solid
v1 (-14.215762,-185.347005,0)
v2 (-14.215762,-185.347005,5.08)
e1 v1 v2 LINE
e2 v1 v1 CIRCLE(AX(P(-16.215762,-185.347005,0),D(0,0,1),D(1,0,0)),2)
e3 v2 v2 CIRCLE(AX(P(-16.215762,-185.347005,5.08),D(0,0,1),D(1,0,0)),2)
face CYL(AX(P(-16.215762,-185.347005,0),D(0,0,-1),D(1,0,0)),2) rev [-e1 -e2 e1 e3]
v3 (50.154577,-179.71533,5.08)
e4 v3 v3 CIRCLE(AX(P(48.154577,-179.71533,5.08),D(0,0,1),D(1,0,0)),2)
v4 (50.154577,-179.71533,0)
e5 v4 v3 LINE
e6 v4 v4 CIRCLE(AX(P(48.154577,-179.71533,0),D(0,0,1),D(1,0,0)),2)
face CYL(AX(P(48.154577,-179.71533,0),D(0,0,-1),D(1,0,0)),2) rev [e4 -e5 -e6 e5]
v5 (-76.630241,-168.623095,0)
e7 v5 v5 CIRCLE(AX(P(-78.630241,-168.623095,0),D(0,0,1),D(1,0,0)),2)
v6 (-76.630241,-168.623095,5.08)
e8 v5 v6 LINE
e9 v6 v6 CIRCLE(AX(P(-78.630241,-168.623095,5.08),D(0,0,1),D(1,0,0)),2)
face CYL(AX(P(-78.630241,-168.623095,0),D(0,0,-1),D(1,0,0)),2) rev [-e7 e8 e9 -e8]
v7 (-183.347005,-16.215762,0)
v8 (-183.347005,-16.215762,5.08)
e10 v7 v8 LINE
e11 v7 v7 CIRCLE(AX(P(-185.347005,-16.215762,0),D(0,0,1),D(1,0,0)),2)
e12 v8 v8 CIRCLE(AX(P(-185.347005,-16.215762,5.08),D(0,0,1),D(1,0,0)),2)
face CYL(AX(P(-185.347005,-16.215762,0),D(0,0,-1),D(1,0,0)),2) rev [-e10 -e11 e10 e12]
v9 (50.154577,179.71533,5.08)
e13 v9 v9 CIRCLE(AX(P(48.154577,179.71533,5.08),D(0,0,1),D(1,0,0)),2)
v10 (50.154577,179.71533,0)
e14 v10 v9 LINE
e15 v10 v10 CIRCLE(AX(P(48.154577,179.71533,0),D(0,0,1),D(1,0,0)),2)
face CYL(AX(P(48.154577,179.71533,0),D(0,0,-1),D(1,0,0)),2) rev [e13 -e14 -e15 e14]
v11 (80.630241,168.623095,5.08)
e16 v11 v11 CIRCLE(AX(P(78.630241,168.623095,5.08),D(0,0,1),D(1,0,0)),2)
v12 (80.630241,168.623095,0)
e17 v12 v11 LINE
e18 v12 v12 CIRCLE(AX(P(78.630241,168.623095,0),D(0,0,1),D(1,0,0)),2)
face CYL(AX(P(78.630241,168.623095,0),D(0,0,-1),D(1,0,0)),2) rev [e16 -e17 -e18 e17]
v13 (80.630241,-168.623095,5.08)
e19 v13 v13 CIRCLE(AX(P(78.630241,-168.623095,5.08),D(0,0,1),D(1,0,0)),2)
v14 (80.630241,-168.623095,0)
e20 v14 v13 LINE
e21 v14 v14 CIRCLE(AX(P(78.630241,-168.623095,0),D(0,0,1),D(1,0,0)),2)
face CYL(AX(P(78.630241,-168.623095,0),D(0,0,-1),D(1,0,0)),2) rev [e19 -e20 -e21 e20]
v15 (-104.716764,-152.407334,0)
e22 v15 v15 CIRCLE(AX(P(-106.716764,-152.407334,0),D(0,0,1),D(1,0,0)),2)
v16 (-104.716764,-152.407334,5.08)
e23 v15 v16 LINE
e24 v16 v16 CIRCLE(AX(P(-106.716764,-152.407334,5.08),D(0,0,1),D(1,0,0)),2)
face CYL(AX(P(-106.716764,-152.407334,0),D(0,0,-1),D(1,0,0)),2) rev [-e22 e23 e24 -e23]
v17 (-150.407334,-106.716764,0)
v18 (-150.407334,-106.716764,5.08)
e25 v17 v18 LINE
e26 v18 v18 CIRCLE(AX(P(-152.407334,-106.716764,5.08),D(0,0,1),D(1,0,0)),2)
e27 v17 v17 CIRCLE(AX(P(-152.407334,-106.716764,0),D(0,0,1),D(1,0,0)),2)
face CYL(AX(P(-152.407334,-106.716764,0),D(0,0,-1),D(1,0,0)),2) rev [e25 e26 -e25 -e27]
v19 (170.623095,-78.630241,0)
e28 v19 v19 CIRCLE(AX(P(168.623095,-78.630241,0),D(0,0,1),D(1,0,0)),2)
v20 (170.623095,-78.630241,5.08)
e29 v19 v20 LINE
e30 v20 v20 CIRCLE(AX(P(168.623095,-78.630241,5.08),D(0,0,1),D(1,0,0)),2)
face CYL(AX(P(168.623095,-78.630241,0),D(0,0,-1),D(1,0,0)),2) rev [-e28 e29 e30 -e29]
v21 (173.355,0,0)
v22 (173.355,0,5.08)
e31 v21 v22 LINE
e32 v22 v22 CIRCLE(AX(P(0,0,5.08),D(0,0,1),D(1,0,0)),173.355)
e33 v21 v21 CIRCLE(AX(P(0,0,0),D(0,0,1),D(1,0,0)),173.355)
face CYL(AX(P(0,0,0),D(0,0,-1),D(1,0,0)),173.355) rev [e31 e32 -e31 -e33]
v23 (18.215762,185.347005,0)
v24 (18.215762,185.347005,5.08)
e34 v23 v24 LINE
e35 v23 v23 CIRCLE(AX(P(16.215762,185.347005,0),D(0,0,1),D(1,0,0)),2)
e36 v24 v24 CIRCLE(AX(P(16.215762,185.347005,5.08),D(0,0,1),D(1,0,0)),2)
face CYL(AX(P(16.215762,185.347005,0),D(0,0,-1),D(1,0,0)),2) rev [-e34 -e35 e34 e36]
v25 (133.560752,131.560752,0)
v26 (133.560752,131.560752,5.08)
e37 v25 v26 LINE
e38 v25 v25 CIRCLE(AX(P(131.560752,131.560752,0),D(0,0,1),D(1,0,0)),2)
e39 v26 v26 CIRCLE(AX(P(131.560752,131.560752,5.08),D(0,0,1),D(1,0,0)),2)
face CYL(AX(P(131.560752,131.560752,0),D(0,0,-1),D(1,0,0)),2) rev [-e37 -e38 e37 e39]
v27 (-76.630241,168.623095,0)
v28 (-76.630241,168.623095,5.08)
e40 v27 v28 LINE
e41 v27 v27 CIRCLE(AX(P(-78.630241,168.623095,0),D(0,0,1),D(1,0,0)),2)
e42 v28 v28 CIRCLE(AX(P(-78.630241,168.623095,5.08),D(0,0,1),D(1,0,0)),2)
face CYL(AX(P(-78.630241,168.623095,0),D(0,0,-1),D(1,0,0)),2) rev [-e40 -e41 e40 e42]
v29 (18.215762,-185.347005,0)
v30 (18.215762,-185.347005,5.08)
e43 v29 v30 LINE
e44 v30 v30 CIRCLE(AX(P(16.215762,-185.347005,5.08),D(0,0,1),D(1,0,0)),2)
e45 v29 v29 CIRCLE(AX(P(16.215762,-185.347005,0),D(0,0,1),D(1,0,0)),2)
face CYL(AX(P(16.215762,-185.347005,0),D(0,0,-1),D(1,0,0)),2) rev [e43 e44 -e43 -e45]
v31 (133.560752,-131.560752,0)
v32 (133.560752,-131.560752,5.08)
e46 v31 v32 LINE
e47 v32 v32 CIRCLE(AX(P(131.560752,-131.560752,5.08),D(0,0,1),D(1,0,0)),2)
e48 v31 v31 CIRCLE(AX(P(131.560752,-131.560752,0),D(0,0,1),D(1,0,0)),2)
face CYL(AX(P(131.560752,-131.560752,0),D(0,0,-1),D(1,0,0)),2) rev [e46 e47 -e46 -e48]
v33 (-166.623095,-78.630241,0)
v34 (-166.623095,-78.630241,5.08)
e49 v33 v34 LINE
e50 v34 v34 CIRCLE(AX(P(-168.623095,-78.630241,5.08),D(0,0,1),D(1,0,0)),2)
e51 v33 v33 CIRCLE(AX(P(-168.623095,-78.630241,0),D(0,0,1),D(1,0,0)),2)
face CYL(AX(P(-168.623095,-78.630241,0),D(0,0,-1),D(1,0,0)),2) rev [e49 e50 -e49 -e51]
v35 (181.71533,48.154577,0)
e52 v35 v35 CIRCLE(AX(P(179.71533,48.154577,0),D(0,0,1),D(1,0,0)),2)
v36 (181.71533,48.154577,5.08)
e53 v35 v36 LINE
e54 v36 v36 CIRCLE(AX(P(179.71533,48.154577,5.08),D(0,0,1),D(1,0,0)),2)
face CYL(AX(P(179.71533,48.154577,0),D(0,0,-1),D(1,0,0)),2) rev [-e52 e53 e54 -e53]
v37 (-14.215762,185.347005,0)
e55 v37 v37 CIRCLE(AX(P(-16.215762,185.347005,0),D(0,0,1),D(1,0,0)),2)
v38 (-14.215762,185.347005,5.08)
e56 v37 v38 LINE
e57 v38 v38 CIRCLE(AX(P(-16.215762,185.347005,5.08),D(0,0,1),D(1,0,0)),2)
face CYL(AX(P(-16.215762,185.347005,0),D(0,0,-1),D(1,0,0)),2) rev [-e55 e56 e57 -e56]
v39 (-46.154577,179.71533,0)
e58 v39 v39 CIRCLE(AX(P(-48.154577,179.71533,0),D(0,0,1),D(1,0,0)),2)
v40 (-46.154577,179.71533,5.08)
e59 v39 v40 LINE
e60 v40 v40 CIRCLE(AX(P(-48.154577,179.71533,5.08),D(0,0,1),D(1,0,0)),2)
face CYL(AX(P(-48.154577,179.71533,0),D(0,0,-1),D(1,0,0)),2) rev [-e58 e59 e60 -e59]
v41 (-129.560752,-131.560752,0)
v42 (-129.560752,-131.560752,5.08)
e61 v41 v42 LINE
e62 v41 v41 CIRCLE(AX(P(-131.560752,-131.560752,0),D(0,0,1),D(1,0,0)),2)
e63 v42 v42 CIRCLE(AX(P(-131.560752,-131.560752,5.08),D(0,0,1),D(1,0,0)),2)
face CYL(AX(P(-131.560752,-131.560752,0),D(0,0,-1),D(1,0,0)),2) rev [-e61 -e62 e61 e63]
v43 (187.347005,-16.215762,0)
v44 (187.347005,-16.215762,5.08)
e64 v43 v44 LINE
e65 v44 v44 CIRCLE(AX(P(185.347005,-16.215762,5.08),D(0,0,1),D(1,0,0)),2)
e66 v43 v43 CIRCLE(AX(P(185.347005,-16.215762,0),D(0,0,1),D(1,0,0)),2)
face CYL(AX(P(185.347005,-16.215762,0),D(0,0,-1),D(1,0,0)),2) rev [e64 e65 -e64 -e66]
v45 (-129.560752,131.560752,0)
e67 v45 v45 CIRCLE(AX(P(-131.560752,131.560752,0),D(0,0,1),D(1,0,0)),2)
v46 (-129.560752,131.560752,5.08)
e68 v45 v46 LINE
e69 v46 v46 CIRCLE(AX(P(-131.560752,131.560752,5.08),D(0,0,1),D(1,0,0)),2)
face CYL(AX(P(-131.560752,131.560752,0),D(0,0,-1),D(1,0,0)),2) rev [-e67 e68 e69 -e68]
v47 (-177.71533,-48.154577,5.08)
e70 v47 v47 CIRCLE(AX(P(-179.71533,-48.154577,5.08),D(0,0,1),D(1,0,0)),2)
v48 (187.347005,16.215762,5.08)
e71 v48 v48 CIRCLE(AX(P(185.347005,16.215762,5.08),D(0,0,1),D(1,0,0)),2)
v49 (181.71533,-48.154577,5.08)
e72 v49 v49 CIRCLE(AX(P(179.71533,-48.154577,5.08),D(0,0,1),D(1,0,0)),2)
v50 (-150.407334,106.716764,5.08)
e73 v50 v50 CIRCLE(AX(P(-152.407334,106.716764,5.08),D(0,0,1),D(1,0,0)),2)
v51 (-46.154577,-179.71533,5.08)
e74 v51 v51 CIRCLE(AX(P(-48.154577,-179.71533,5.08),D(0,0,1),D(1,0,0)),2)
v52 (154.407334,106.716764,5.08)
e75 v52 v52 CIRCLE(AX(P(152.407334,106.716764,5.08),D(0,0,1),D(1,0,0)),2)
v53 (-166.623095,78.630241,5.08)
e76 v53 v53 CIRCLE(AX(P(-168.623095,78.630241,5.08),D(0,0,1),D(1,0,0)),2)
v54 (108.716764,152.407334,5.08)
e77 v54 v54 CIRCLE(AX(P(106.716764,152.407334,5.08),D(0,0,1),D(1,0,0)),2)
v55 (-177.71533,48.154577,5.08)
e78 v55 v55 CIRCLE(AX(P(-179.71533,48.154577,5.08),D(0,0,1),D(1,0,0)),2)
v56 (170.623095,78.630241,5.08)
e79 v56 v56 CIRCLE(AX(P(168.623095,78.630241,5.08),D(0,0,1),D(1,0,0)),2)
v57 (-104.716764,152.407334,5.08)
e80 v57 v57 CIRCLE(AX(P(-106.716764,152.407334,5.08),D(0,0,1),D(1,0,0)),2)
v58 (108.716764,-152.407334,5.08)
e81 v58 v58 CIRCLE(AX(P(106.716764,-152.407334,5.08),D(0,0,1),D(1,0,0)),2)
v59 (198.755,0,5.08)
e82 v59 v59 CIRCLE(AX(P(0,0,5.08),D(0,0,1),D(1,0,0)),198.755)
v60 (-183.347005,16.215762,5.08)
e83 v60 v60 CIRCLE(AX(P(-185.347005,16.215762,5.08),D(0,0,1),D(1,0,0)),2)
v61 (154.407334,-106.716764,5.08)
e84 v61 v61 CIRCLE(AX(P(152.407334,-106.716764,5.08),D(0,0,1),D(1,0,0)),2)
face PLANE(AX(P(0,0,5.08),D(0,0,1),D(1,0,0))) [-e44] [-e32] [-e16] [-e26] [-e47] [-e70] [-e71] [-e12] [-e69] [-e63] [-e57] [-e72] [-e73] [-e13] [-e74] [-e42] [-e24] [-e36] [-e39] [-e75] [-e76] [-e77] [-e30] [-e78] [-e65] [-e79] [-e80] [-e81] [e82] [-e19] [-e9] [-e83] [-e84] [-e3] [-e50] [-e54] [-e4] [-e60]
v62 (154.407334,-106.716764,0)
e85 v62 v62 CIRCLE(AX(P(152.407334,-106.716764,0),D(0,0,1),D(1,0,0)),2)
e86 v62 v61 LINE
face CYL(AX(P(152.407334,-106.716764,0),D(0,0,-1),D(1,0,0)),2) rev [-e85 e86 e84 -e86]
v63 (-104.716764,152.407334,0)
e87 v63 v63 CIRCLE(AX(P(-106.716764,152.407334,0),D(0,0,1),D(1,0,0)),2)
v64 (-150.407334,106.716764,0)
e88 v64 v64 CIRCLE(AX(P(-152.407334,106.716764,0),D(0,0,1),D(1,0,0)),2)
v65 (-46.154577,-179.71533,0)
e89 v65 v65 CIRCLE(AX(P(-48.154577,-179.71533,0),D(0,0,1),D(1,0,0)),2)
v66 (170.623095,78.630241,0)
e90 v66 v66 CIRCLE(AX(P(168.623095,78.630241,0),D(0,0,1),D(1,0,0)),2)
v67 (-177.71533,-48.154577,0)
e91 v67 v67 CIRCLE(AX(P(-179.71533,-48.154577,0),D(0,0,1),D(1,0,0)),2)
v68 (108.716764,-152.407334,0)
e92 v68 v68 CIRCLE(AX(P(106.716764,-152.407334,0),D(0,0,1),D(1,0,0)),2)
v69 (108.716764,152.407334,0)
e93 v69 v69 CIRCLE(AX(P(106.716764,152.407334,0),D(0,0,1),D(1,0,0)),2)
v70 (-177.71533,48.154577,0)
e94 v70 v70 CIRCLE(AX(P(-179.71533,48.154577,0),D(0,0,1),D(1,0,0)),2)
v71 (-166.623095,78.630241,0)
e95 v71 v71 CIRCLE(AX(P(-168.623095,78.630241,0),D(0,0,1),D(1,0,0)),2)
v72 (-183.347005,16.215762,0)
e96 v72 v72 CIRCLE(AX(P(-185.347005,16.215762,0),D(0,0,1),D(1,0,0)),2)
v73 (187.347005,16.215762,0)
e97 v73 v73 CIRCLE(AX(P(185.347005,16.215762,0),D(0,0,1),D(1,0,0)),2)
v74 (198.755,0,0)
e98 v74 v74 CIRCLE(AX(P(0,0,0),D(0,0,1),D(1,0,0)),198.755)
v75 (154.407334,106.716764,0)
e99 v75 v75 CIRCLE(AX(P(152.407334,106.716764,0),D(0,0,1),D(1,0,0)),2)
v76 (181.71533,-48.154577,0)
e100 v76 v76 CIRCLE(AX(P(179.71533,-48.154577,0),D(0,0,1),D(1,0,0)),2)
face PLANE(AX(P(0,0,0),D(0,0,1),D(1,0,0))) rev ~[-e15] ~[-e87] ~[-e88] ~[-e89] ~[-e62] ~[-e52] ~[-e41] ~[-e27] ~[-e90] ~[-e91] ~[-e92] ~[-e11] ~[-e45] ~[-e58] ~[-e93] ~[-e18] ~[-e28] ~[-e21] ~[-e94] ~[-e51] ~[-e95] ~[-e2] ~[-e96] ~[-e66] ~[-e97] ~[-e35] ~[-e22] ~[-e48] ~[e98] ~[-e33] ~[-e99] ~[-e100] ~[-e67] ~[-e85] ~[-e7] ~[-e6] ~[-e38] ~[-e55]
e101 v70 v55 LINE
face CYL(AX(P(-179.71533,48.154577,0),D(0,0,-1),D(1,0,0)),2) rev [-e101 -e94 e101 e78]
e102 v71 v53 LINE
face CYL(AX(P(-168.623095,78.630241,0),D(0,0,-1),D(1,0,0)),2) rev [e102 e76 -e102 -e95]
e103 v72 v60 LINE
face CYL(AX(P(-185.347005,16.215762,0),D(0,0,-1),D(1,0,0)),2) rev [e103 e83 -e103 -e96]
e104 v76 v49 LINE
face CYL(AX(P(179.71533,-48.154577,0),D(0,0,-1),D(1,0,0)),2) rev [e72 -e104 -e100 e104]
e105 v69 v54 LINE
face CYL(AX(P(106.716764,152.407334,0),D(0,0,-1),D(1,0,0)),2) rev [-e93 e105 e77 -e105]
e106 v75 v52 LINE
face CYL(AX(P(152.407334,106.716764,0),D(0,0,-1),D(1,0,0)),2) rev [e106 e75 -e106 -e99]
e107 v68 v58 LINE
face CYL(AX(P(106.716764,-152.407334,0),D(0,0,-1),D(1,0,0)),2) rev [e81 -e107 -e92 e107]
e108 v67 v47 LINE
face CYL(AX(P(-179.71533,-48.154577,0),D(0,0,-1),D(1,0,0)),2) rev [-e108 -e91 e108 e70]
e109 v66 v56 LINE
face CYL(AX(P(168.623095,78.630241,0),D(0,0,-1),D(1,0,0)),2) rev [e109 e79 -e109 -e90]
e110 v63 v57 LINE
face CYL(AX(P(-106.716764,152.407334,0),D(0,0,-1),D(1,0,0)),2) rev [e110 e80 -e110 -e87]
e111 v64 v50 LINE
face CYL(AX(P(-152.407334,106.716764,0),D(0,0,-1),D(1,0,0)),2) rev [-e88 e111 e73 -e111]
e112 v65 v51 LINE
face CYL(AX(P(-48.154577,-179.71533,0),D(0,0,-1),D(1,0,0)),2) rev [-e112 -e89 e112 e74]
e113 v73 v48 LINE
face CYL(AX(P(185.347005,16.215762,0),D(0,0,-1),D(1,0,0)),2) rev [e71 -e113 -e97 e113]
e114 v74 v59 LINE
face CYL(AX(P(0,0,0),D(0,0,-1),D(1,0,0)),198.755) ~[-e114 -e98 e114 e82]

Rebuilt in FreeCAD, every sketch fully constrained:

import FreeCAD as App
import Part
import Sketcher
Q = App.Units.Quantity

doc = App.newDocument("Part")
body = doc.addObject("PartDesign::Body", "Body")

# Sketch on XY plane
sketch1 = body.newObject("Sketcher::SketchObject", "Sketch")
sketch1.AttachmentSupport = (doc.getObject("XY_Plane"), [""])
sketch1.MapMode = "FlatFace"
sketch1.addGeometry(Part.Circle(App.Vector(0, 0, 0), App.Vector(0, 0, 1), 198.8), False)
sketch1.addGeometry(Part.Circle(App.Vector(-106.7, -152.4, 0), App.Vector(0, 0, 1), 2), False)
sketch1.addGeometry(Part.Circle(App.Vector(-152.4, -106.7, 0), App.Vector(0, 0, 1), 2), False)
sketch1.addGeometry(Part.Circle(App.Vector(-131.6, -131.6, 0), App.Vector(0, 0, 1), 2), False)
sketch1.addGeometry(Part.Circle(App.Vector(-78.6, -168.6, 0), App.Vector(0, 0, 1), 2), False)
sketch1.addGeometry(Part.Circle(App.Vector(-48.2, -179.7, 0), App.Vector(0, 0, 1), 2), False)
sketch1.addGeometry(Part.Circle(App.Vector(-16.2, -185.3, 0), App.Vector(0, 0, 1), 2), False)
sketch1.addGeometry(Part.Circle(App.Vector(-168.6, -78.6, 0), App.Vector(0, 0, 1), 2), False)
sketch1.addGeometry(Part.Circle(App.Vector(-179.7, -48.2, 0), App.Vector(0, 0, 1), 2), False)
sketch1.addGeometry(Part.Circle(App.Vector(-185.3, -16.2, 0), App.Vector(0, 0, 1), 2), False)
sketch1.addGeometry(Part.Circle(App.Vector(16.2, -185.3, 0), App.Vector(0, 0, 1), 2), False)
sketch1.addGeometry(Part.Circle(App.Vector(48.2, -179.7, 0), App.Vector(0, 0, 1), 2), False)
sketch1.addGeometry(Part.Circle(App.Vector(78.6, -168.6, 0), App.Vector(0, 0, 1), 2), False)
sketch1.addGeometry(Part.Circle(App.Vector(106.7, -152.4, 0), App.Vector(0, 0, 1), 2), False)
sketch1.addGeometry(Part.Circle(App.Vector(131.6, -131.6, 0), App.Vector(0, 0, 1), 2), False)
sketch1.addGeometry(Part.Circle(App.Vector(152.4, -106.7, 0), App.Vector(0, 0, 1), 2), False)
sketch1.addGeometry(Part.Circle(App.Vector(168.6, -78.6, 0), App.Vector(0, 0, 1), 2), False)
sketch1.addGeometry(Part.Circle(App.Vector(179.7, -48.2, 0), App.Vector(0, 0, 1), 2), False)
sketch1.addGeometry(Part.Circle(App.Vector(185.3, -16.2, 0), App.Vector(0, 0, 1), 2), False)
sketch1.addGeometry(Part.Circle(App.Vector(-185.3, 16.2, 0), App.Vector(0, 0, 1), 2), False)
sketch1.addGeometry(Part.Circle(App.Vector(-179.7, 48.2, 0), App.Vector(0, 0, 1), 2), False)
sketch1.addGeometry(Part.Circle(App.Vector(-168.6, 78.6, 0), App.Vector(0, 0, 1), 2), False)
sketch1.addGeometry(Part.Circle(App.Vector(-152.4, 106.7, 0), App.Vector(0, 0, 1), 2), False)
sketch1.addGeometry(Part.Circle(App.Vector(-131.6, 131.6, 0), App.Vector(0, 0, 1), 2), False)
sketch1.addGeometry(Part.Circle(App.Vector(-106.7, 152.4, 0), App.Vector(0, 0, 1), 2), False)
sketch1.addGeometry(Part.Circle(App.Vector(-78.6, 168.6, 0), App.Vector(0, 0, 1), 2), False)
sketch1.addGeometry(Part.Circle(App.Vector(-48.2, 179.7, 0), App.Vector(0, 0, 1), 2), False)
sketch1.addGeometry(Part.Circle(App.Vector(-16.2, 185.3, 0), App.Vector(0, 0, 1), 2), False)
sketch1.addGeometry(Part.Circle(App.Vector(0, 0, 0), App.Vector(0, 0, 1), 173.4), False)
sketch1.addGeometry(Part.Circle(App.Vector(185.3, 16.2, 0), App.Vector(0, 0, 1), 2), False)
sketch1.addGeometry(Part.Circle(App.Vector(179.7, 48.2, 0), App.Vector(0, 0, 1), 2), False)
sketch1.addGeometry(Part.Circle(App.Vector(168.6, 78.6, 0), App.Vector(0, 0, 1), 2), False)
sketch1.addGeometry(Part.Circle(App.Vector(16.2, 185.3, 0), App.Vector(0, 0, 1), 2), False)
sketch1.addGeometry(Part.Circle(App.Vector(48.2, 179.7, 0), App.Vector(0, 0, 1), 2), False)
sketch1.addGeometry(Part.Circle(App.Vector(78.6, 168.6, 0), App.Vector(0, 0, 1), 2), False)
sketch1.addGeometry(Part.Circle(App.Vector(131.6, 131.6, 0), App.Vector(0, 0, 1), 2), False)
sketch1.addGeometry(Part.Circle(App.Vector(152.4, 106.7, 0), App.Vector(0, 0, 1), 2), False)
sketch1.addGeometry(Part.Circle(App.Vector(106.7, 152.4, 0), App.Vector(0, 0, 1), 2), False)
sketch1.addConstraint(Sketcher.Constraint("Coincident", 0, 3, -1, 1))
sketch1.addConstraint(Sketcher.Constraint("Coincident", 28, 3, -1, 1))
sketch1.addConstraint(Sketcher.Constraint("Equal", 1, 2))
sketch1.addConstraint(Sketcher.Constraint("Equal", 2, 3))
sketch1.addConstraint(Sketcher.Constraint("Equal", 3, 4))
sketch1.addConstraint(Sketcher.Constraint("Equal", 4, 5))
sketch1.addConstraint(Sketcher.Constraint("Equal", 5, 6))
sketch1.addConstraint(Sketcher.Constraint("Equal", 6, 7))
sketch1.addConstraint(Sketcher.Constraint("Equal", 7, 8))
sketch1.addConstraint(Sketcher.Constraint("Equal", 8, 9))
sketch1.addConstraint(Sketcher.Constraint("Equal", 9, 10))
sketch1.addConstraint(Sketcher.Constraint("Equal", 10, 11))
sketch1.addConstraint(Sketcher.Constraint("Equal", 11, 12))
sketch1.addConstraint(Sketcher.Constraint("Equal", 12, 13))
sketch1.addConstraint(Sketcher.Constraint("Equal", 13, 14))
sketch1.addConstraint(Sketcher.Constraint("Equal", 14, 15))
sketch1.addConstraint(Sketcher.Constraint("Equal", 15, 16))
sketch1.addConstraint(Sketcher.Constraint("Equal", 16, 17))
sketch1.addConstraint(Sketcher.Constraint("Equal", 17, 18))
sketch1.addConstraint(Sketcher.Constraint("Equal", 18, 19))
sketch1.addConstraint(Sketcher.Constraint("Equal", 19, 20))
sketch1.addConstraint(Sketcher.Constraint("Equal", 20, 21))
sketch1.addConstraint(Sketcher.Constraint("Equal", 21, 22))
sketch1.addConstraint(Sketcher.Constraint("Equal", 22, 23))
sketch1.addConstraint(Sketcher.Constraint("Equal", 23, 24))
sketch1.addConstraint(Sketcher.Constraint("Equal", 24, 25))
sketch1.addConstraint(Sketcher.Constraint("Equal", 25, 26))
sketch1.addConstraint(Sketcher.Constraint("Equal", 26, 27))
sketch1.addConstraint(Sketcher.Constraint("Equal", 27, 29))
sketch1.addConstraint(Sketcher.Constraint("Equal", 29, 30))
sketch1.addConstraint(Sketcher.Constraint("Equal", 30, 31))
sketch1.addConstraint(Sketcher.Constraint("Equal", 31, 32))
sketch1.addConstraint(Sketcher.Constraint("Equal", 32, 33))
sketch1.addConstraint(Sketcher.Constraint("Equal", 33, 34))
sketch1.addConstraint(Sketcher.Constraint("Equal", 34, 35))
sketch1.addConstraint(Sketcher.Constraint("Equal", 35, 36))
sketch1.addConstraint(Sketcher.Constraint("Equal", 36, 37))
sketch1.addConstraint(Sketcher.Constraint("Symmetric", 18, 3, 19, 3, -1, 1))
sketch1.addConstraint(Sketcher.Constraint("Symmetric", 17, 3, 20, 3, -1, 1))
sketch1.addConstraint(Sketcher.Constraint("Symmetric", 16, 3, 21, 3, -1, 1))
sketch1.addConstraint(Sketcher.Constraint("Symmetric", 15, 3, 22, 3, -1, 1))
sketch1.addConstraint(Sketcher.Constraint("Symmetric", 14, 3, 23, 3, -1, 1))
sketch1.addConstraint(Sketcher.Constraint("Symmetric", 13, 3, 24, 3, -1, 1))
sketch1.addConstraint(Sketcher.Constraint("Symmetric", 12, 3, 25, 3, -1, 1))
sketch1.addConstraint(Sketcher.Constraint("Symmetric", 11, 3, 26, 3, -1, 1))
sketch1.addConstraint(Sketcher.Constraint("Symmetric", 10, 3, 27, 3, -1, 1))
sketch1.addConstraint(Sketcher.Constraint("Symmetric", 9, 3, 29, 3, -1, 1))
sketch1.addConstraint(Sketcher.Constraint("Symmetric", 8, 3, 30, 3, -1, 1))
sketch1.addConstraint(Sketcher.Constraint("Symmetric", 7, 3, 31, 3, -1, 1))
sketch1.addConstraint(Sketcher.Constraint("Symmetric", 6, 3, 32, 3, -1, 1))
sketch1.addConstraint(Sketcher.Constraint("Symmetric", 5, 3, 33, 3, -1, 1))
sketch1.addConstraint(Sketcher.Constraint("Symmetric", 4, 3, 34, 3, -1, 1))
sketch1.addConstraint(Sketcher.Constraint("Symmetric", 3, 3, 35, 3, -1, 1))
sketch1.addConstraint(Sketcher.Constraint("Symmetric", 2, 3, 36, 3, -1, 1))
sketch1.addConstraint(Sketcher.Constraint("Symmetric", 1, 3, 37, 3, -1, 1))
sketch1.addConstraint(Sketcher.Constraint("Symmetric", 6, 3, 10, 3, -2))
sketch1.addConstraint(Sketcher.Constraint("Symmetric", 5, 3, 11, 3, -2))
sketch1.addConstraint(Sketcher.Constraint("Symmetric", 4, 3, 12, 3, -2))
sketch1.addConstraint(Sketcher.Constraint("Symmetric", 1, 3, 13, 3, -2))
sketch1.addConstraint(Sketcher.Constraint("Symmetric", 3, 3, 14, 3, -2))
sketch1.addConstraint(Sketcher.Constraint("Symmetric", 2, 3, 15, 3, -2))
sketch1.addConstraint(Sketcher.Constraint("Symmetric", 7, 3, 16, 3, -2))
sketch1.addConstraint(Sketcher.Constraint("Symmetric", 8, 3, 17, 3, -2))
sketch1.addConstraint(Sketcher.Constraint("Symmetric", 9, 3, 18, 3, -2))
sketch1.addConstraint(Sketcher.Constraint("Diameter", 0, Q("15.65 in")))
sketch1.addConstraint(Sketcher.Constraint("Diameter", 28, Q("13.65 in")))
sketch1.addConstraint(Sketcher.Constraint("Diameter", 1, 4.0))
sketch1.addConstraint(Sketcher.Constraint("DistanceX", 1, 3, 6, 3, 90.501002))
sketch1.addConstraint(Sketcher.Constraint("DistanceY", 2, 3, 9, 3, 90.501002))
sketch1.addConstraint(Sketcher.Constraint("DistanceX", 3, 3, -1, 1, 131.560752))
sketch1.addConstraint(Sketcher.Constraint("DistanceY", 3, 3, -1, 1, 131.560752))
sketch1.addConstraint(Sketcher.Constraint("DistanceX", 4, 3, -1, 1, 78.630241))
sketch1.addConstraint(Sketcher.Constraint("DistanceY", 5, 3, -1, 1, 179.71533))
sketch1.addConstraint(Sketcher.Constraint("DistanceY", 7, 3, -1, 1, 78.630241))
sketch1.addConstraint(Sketcher.Constraint("DistanceX", 8, 3, -1, 1, 179.71533))
sketch1.addConstraint(Sketcher.Constraint("DistanceX", 2, 3, 1, 3, 45.69057))
sketch1.addConstraint(Sketcher.Constraint("DistanceY", 1, 3, 2, 3, 45.69057))
sketch1.addConstraint(Sketcher.Constraint("DistanceX", 3, 3, 1, 3, 24.843988))
sketch1.addConstraint(Sketcher.Constraint("DistanceY", 1, 3, 3, 3, 20.846582))
sketch1.addConstraint(Sketcher.Constraint("DistanceY", 4, 3, 1, 3, 16.215761))
sketch1.addConstraint(Sketcher.Constraint("DistanceY", 6, 3, 4, 3, 16.72391))
sketch1.addConstraint(Sketcher.Constraint("DistanceX", 7, 3, 2, 3, 16.215761))
sketch1.addConstraint(Sketcher.Constraint("DistanceX", 7, 3, 5, 3, 120.468518))
sketch1.addConstraint(Sketcher.Constraint("DistanceY", 4, 3, 8, 3, 120.468518))
sketch1.addConstraint(Sketcher.Constraint("DistanceX", 9, 3, 7, 3, 16.72391))
pad1 = body.newObject("PartDesign::Pad", "Pad")
pad1.Profile = sketch1
pad1.Length = Q("0.2 in")

doc.recompute()
